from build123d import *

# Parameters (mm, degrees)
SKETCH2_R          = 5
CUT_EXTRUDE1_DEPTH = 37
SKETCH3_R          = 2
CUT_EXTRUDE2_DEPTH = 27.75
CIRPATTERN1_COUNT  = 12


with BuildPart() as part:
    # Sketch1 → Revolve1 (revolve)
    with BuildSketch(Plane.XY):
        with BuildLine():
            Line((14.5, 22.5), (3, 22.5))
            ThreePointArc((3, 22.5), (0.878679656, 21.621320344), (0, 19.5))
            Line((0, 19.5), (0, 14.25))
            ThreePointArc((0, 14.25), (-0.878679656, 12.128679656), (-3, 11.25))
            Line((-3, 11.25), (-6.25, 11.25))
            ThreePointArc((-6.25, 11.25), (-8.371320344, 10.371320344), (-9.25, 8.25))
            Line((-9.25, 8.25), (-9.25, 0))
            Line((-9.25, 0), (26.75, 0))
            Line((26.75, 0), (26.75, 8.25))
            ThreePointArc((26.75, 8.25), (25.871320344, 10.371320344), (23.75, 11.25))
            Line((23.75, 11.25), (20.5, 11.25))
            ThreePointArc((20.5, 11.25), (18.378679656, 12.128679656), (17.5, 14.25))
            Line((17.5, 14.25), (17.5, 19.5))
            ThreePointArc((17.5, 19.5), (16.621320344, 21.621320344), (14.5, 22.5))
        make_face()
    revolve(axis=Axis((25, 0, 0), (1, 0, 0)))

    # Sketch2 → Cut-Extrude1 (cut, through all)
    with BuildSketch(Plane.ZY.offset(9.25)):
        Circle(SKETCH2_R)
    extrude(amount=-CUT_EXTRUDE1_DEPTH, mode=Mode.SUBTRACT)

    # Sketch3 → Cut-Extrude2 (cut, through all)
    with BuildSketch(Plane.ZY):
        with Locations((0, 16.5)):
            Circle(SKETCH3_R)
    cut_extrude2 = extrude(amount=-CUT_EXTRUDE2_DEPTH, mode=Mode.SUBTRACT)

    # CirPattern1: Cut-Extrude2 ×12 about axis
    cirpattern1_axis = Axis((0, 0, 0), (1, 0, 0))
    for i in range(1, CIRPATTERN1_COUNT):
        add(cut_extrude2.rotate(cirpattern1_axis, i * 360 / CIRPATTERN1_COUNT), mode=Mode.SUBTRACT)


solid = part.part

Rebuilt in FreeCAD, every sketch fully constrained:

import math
import FreeCAD as App
import Part
import Sketcher
from FreeCAD import Vector
Q = App.Units.Quantity

doc = App.newDocument("Part")
body = doc.addObject("PartDesign::Body", "Body")

# Sketch on XY plane
sketch1 = body.newObject("Sketcher::SketchObject", "Sketch")
sketch1.AttachmentSupport = (doc.getObject("XY_Plane"), [""])
sketch1.MapMode = "FlatFace"
sketch1.addGeometry(Part.LineSegment(Vector(14.5, 22.5, 0), Vector(3, 22.5, 0)), False)
sketch1.addGeometry(Part.ArcOfCircle(Part.Circle(Vector(3, 19.5, 0), Vector(0, 0, 1), 3), math.radians(90), math.radians(180)), False)
sketch1.addGeometry(Part.LineSegment(Vector(0, 19.5, 0), Vector(0, 14.25, 0)), False)
sketch1.addGeometry(Part.ArcOfCircle(Part.Circle(Vector(-3, 14.25, 0), Vector(0, 0, 1), 3), math.radians(-90), math.radians(0)), False)
sketch1.addGeometry(Part.LineSegment(Vector(-3, 11.25, 0), Vector(-6.25, 11.25, 0)), False)
sketch1.addGeometry(Part.ArcOfCircle(Part.Circle(Vector(-6.25, 8.25, 0), Vector(0, 0, 1), 3), math.radians(90), math.radians(180)), False)
sketch1.addGeometry(Part.LineSegment(Vector(-9.25, 8.25, 0), Vector(-9.25, 0, 0)), False)
sketch1.addGeometry(Part.LineSegment(Vector(-9.25, 0, 0), Vector(26.75, 0, 0)), False)
sketch1.addGeometry(Part.LineSegment(Vector(26.75, 0, 0), Vector(26.75, 8.25, 0)), False)
sketch1.addGeometry(Part.ArcOfCircle(Part.Circle(Vector(23.75, 8.25, 0), Vector(0, 0, 1), 3), math.radians(0), math.radians(90)), False)
sketch1.addGeometry(Part.LineSegment(Vector(23.75, 11.25, 0), Vector(20.5, 11.25, 0)), False)
sketch1.addGeometry(Part.ArcOfCircle(Part.Circle(Vector(20.5, 14.25, 0), Vector(0, 0, 1), 3), math.radians(180), math.radians(270)), False)
sketch1.addGeometry(Part.LineSegment(Vector(17.5, 14.25, 0), Vector(17.5, 19.5, 0)), False)
sketch1.addGeometry(Part.ArcOfCircle(Part.Circle(Vector(14.5, 19.5, 0), Vector(0, 0, 1), 3), math.radians(0), math.radians(90)), False)
sketch1.addConstraint(Sketcher.Constraint("Tangent", 0, 2, 1, 1))
sketch1.addConstraint(Sketcher.Constraint("Tangent", 1, 2, 2, 1))
sketch1.addConstraint(Sketcher.Constraint("Tangent", 2, 2, 3, 2))
sketch1.addConstraint(Sketcher.Constraint("Tangent", 3, 1, 4, 1))
sketch1.addConstraint(Sketcher.Constraint("Tangent", 4, 2, 5, 1))
sketch1.addConstraint(Sketcher.Constraint("Tangent", 5, 2, 6, 1))
sketch1.addConstraint(Sketcher.Constraint("Coincident", 6, 2, 7, 1))
sketch1.addConstraint(Sketcher.Constraint("Coincident", 7, 2, 8, 1))
sketch1.addConstraint(Sketcher.Constraint("Tangent", 8, 2, 9, 1))
sketch1.addConstraint(Sketcher.Constraint("Tangent", 9, 2, 10, 1))
sketch1.addConstraint(Sketcher.Constraint("Tangent", 10, 2, 11, 2))
sketch1.addConstraint(Sketcher.Constraint("Tangent", 11, 1, 12, 1))
sketch1.addConstraint(Sketcher.Constraint("Tangent", 12, 2, 13, 1))
sketch1.addConstraint(Sketcher.Constraint("Tangent", 13, 2, 0, 1))
sketch1.addConstraint(Sketcher.Constraint("Horizontal", 0))
sketch1.addConstraint(Sketcher.Constraint("Vertical", 2))
sketch1.addConstraint(Sketcher.Constraint("Horizontal", 4))
sketch1.addConstraint(Sketcher.Constraint("Vertical", 6))
sketch1.addConstraint(Sketcher.Constraint("Horizontal", 7))
sketch1.addConstraint(Sketcher.Constraint("Vertical", 8))
sketch1.addConstraint(Sketcher.Constraint("Horizontal", 10))
sketch1.addConstraint(Sketcher.Constraint("Vertical", 12))
sketch1.addConstraint(Sketcher.Constraint("Equal", 1, 3))
sketch1.addConstraint(Sketcher.Constraint("Equal", 3, 5))
sketch1.addConstraint(Sketcher.Constraint("Equal", 5, 9))
sketch1.addConstraint(Sketcher.Constraint("Equal", 9, 11))
sketch1.addConstraint(Sketcher.Constraint("Equal", 11, 13))
sketch1.addConstraint(Sketcher.Constraint("PointOnObject", 1, 2, -2))
sketch1.addConstraint(Sketcher.Constraint("PointOnObject", 6, 2, -1))
sketch1.addConstraint(Sketcher.Constraint("Horizontal", 5, 3, 9, 3))
sketch1.addConstraint(Sketcher.Constraint("Equal", 4, 10))
sketch1.addConstraint(Sketcher.Constraint("Radius", 1, Q("3 mm")))
sketch1.addConstraint(Sketcher.Constraint("DistanceX", 7, 1, 7, 2, Q("36 mm")))
sketch1.addConstraint(Sketcher.Constraint("DistanceX", 0, 2, 0, 1, Q("11.5 mm")))
sketch1.addConstraint(Sketcher.Constraint("DistanceY", 2, 2, 2, 1, Q("5.25 mm")))
sketch1.addConstraint(Sketcher.Constraint("DistanceY", 6, 2, 6, 1, Q("8.25 mm")))
revolution = body.newObject("PartDesign::Revolution", "Revolution")
revolution.Profile = sketch1
revolution.ReferenceAxis = (sketch1, ["H_Axis"])
revolution.Angle = 360

# Sketch on YZ plane
sketch2 = body.newObject("Sketcher::SketchObject", "Sketch001")
sketch2.AttachmentSupport = (doc.getObject("YZ_Plane"), [""])
sketch2.MapMode = "FlatFace"
sketch2.AttachmentOffset = App.Placement(Vector(0, 0, -9.25), App.Rotation())
sketch2.addGeometry(Part.Circle(Vector(0, 0, 0), Vector(0, 0, 1), 5), False)
sketch2.addConstraint(Sketcher.Constraint("Coincident", 0, 3, -1, 1))
sketch2.addConstraint(Sketcher.Constraint("Diameter", 0, Q("10 mm")))
pocket1 = body.newObject("PartDesign::Pocket", "Pocket")
pocket1.Profile = sketch2
pocket1.Type = "ThroughAll"
pocket1.Reversed = True

# Sketch on YZ plane
sketch3 = body.newObject("Sketcher::SketchObject", "Sketch002")
sketch3.AttachmentSupport = (doc.getObject("YZ_Plane"), [""])
sketch3.MapMode = "FlatFace"
sketch3.addGeometry(Part.Circle(Vector(16.5, 0, 0), Vector(0, 0, 1), 2), False)
sketch3.addConstraint(Sketcher.Constraint("PointOnObject", 0, 3, -1))
sketch3.addConstraint(Sketcher.Constraint("Diameter", 0, Q("4 mm")))
sketch3.addConstraint(Sketcher.Constraint("DistanceX", -1, 1, 0, 3, Q("16.5 mm")))
pocket2 = body.newObject("PartDesign::Pocket", "Pocket001")
pocket2.Profile = sketch3
pocket2.Type = "ThroughAll"
pocket2.Reversed = True
doc.recompute()

polarpattern = body.newObject("PartDesign::PolarPattern", "PolarPattern")
polarpattern.Originals = [pocket2]
polarpattern.Axis = (doc.getObject("X_Axis"), [""])
polarpattern.Angle = 360
polarpattern.Occurrences = 12
body.Tip = polarpattern

doc.recompute()
